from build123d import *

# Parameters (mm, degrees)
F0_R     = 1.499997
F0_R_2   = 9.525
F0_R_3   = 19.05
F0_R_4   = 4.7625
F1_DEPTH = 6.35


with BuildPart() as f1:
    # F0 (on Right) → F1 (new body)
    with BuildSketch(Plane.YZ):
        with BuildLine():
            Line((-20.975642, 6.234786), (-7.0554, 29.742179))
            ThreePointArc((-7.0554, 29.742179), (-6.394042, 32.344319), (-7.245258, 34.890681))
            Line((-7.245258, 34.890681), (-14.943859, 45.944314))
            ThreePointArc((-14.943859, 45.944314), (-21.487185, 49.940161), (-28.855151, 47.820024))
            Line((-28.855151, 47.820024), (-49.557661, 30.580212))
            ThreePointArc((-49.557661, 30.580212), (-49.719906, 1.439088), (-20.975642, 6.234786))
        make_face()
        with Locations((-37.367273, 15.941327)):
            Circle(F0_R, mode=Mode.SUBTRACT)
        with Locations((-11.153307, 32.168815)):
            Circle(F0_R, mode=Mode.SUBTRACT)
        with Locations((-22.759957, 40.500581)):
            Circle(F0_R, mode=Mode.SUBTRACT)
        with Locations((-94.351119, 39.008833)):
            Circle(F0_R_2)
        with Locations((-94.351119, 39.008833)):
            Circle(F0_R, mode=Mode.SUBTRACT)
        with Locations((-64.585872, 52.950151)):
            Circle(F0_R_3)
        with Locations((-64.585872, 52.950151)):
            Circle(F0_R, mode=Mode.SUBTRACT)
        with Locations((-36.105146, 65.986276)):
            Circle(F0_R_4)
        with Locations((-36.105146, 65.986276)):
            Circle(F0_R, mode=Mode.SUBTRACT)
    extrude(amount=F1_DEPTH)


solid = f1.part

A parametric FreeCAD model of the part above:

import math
import FreeCAD as App
import Part
import Sketcher
Q = App.Units.Quantity

doc = App.newDocument("Part")
body = doc.addObject("PartDesign::Body", "Body")
body.AllowCompound = True

# Sketch on YZ plane
sketch1 = body.newObject("Sketcher::SketchObject", "Sketch")
sketch1.AttachmentSupport = (doc.getObject("YZ_Plane"), [""])
sketch1.MapMode = "FlatFace"
sketch1.addGeometry([
    Part.LineSegment(App.Vector(-21, 6.2, 0), App.Vector(-7.1, 29.7, 0)),  # 0
    Part.ArcOfCircle(Part.Circle(App.Vector(-11.2, 32.2, 0), App.Vector(0, 0, 1), 4.8), math.radians(-31), math.radians(35)),  # 1
    Part.LineSegment(App.Vector(-7.2, 34.9, 0), App.Vector(-14.9, 45.9, 0)),  # 2
    Part.ArcOfCircle(Part.Circle(App.Vector(-22.8, 40.5, 0), App.Vector(0, 0, 1), 9.5), math.radians(35), math.radians(130)),  # 3
    Part.LineSegment(App.Vector(-28.9, 47.8, 0), App.Vector(-49.6, 30.6, 0)),  # 4
    Part.ArcOfCircle(Part.Circle(App.Vector(-37.4, 15.9, 0), App.Vector(0, 0, 1), 19.1), math.radians(130), math.radians(329)),  # 5
    Part.Circle(App.Vector(-37.4, 15.9, 0), App.Vector(0, 0, 1), 1.5),  # 6
    Part.Circle(App.Vector(-11.2, 32.2, 0), App.Vector(0, 0, 1), 1.5),  # 7
    Part.Circle(App.Vector(-22.8, 40.5, 0), App.Vector(0, 0, 1), 1.5),  # 8
    Part.Circle(App.Vector(-94.4, 39, 0), App.Vector(0, 0, 1), 9.5),  # 9
    Part.Circle(App.Vector(-94.4, 39, 0), App.Vector(0, 0, 1), 1.5),  # 10
    Part.Circle(App.Vector(-64.6, 53, 0), App.Vector(0, 0, 1), 19.1),  # 11
    Part.Circle(App.Vector(-64.6, 53, 0), App.Vector(0, 0, 1), 1.5),  # 12
    Part.Circle(App.Vector(-36.1, 66, 0), App.Vector(0, 0, 1), 4.8),  # 13
    Part.Circle(App.Vector(-36.1, 66, 0), App.Vector(0, 0, 1), 1.5),  # 14
], False)
sketch1.addConstraint([
    Sketcher.Constraint("Tangent", 0, 2, 1, 1),
    Sketcher.Constraint("Tangent", 1, 2, 2, 1),
    Sketcher.Constraint("Tangent", 2, 2, 3, 1),
    Sketcher.Constraint("Tangent", 3, 2, 4, 1),
    Sketcher.Constraint("Tangent", 4, 2, 5, 1),
    Sketcher.Constraint("Tangent", 5, 2, 0, 1),
    Sketcher.Constraint("Coincident", 6, 3, 5, 3),
    Sketcher.Constraint("Coincident", 7, 3, 1, 3),
    Sketcher.Constraint("Coincident", 8, 3, 3, 3),
    Sketcher.Constraint("Coincident", 10, 3, 9, 3),
    Sketcher.Constraint("Coincident", 12, 3, 11, 3),
    Sketcher.Constraint("Coincident", 14, 3, 13, 3),
    Sketcher.Constraint("Equal", 6, 7),
    Sketcher.Constraint("Equal", 7, 8),
    Sketcher.Constraint("Equal", 3, 9),
    Sketcher.Constraint("Equal", 8, 10),
    Sketcher.Constraint("Equal", 5, 11),
    Sketcher.Constraint("Equal", 10, 12),
    Sketcher.Constraint("Equal", 1, 13),
    Sketcher.Constraint("Equal", 12, 14),
    Sketcher.Constraint("Diameter", 11, Q("1.5 in")),
    Sketcher.Constraint("Diameter", 9, Q("0.75 in")),
    Sketcher.Constraint("Diameter", 13, Q("0.375 in")),
    Sketcher.Constraint("Diameter", 6, Q("2.999994 mm")),
    Sketcher.Constraint("DistanceX", 0, 2, -1, 1, Q("7.0554 mm")),
    Sketcher.Constraint("DistanceX", 11, 3, 5, 3, Q("27.218599 mm")),
    Sketcher.Constraint("DistanceY", 0, 2, 8, 3, Q("10.758402 mm")),
    Sketcher.Constraint("DistanceY", 0, 2, 1, 2, Q("5.148502 mm")),
    Sketcher.Constraint("DistanceX", 8, 3, 1, 2, Q("15.514699 mm")),
    Sketcher.Constraint("Distance", 4, Q("26.940769 mm")),
    Sketcher.Constraint("DistanceY", -1, 1, 3, 3, Q("40.50058 mm")),
    Sketcher.Constraint("DistanceX", 9, 3, -1, 1, Q("94.351119 mm")),
    Sketcher.Constraint("DistanceY", -1, 1, 11, 3, Q("52.950151 mm")),
    Sketcher.Constraint("DistanceY", 7, 3, 9, 3, Q("6.840018 mm")),
    Sketcher.Constraint("DistanceX", 13, 3, 8, 3, Q("13.345189 mm")),
    Sketcher.Constraint("DistanceY", 7, 3, 13, 3, Q("33.817461 mm")),
])
pad1 = body.newObject("PartDesign::Pad", "Pad")
pad1.Profile = sketch1
pad1.Length = Q("0.25 in")

doc.recompute()
